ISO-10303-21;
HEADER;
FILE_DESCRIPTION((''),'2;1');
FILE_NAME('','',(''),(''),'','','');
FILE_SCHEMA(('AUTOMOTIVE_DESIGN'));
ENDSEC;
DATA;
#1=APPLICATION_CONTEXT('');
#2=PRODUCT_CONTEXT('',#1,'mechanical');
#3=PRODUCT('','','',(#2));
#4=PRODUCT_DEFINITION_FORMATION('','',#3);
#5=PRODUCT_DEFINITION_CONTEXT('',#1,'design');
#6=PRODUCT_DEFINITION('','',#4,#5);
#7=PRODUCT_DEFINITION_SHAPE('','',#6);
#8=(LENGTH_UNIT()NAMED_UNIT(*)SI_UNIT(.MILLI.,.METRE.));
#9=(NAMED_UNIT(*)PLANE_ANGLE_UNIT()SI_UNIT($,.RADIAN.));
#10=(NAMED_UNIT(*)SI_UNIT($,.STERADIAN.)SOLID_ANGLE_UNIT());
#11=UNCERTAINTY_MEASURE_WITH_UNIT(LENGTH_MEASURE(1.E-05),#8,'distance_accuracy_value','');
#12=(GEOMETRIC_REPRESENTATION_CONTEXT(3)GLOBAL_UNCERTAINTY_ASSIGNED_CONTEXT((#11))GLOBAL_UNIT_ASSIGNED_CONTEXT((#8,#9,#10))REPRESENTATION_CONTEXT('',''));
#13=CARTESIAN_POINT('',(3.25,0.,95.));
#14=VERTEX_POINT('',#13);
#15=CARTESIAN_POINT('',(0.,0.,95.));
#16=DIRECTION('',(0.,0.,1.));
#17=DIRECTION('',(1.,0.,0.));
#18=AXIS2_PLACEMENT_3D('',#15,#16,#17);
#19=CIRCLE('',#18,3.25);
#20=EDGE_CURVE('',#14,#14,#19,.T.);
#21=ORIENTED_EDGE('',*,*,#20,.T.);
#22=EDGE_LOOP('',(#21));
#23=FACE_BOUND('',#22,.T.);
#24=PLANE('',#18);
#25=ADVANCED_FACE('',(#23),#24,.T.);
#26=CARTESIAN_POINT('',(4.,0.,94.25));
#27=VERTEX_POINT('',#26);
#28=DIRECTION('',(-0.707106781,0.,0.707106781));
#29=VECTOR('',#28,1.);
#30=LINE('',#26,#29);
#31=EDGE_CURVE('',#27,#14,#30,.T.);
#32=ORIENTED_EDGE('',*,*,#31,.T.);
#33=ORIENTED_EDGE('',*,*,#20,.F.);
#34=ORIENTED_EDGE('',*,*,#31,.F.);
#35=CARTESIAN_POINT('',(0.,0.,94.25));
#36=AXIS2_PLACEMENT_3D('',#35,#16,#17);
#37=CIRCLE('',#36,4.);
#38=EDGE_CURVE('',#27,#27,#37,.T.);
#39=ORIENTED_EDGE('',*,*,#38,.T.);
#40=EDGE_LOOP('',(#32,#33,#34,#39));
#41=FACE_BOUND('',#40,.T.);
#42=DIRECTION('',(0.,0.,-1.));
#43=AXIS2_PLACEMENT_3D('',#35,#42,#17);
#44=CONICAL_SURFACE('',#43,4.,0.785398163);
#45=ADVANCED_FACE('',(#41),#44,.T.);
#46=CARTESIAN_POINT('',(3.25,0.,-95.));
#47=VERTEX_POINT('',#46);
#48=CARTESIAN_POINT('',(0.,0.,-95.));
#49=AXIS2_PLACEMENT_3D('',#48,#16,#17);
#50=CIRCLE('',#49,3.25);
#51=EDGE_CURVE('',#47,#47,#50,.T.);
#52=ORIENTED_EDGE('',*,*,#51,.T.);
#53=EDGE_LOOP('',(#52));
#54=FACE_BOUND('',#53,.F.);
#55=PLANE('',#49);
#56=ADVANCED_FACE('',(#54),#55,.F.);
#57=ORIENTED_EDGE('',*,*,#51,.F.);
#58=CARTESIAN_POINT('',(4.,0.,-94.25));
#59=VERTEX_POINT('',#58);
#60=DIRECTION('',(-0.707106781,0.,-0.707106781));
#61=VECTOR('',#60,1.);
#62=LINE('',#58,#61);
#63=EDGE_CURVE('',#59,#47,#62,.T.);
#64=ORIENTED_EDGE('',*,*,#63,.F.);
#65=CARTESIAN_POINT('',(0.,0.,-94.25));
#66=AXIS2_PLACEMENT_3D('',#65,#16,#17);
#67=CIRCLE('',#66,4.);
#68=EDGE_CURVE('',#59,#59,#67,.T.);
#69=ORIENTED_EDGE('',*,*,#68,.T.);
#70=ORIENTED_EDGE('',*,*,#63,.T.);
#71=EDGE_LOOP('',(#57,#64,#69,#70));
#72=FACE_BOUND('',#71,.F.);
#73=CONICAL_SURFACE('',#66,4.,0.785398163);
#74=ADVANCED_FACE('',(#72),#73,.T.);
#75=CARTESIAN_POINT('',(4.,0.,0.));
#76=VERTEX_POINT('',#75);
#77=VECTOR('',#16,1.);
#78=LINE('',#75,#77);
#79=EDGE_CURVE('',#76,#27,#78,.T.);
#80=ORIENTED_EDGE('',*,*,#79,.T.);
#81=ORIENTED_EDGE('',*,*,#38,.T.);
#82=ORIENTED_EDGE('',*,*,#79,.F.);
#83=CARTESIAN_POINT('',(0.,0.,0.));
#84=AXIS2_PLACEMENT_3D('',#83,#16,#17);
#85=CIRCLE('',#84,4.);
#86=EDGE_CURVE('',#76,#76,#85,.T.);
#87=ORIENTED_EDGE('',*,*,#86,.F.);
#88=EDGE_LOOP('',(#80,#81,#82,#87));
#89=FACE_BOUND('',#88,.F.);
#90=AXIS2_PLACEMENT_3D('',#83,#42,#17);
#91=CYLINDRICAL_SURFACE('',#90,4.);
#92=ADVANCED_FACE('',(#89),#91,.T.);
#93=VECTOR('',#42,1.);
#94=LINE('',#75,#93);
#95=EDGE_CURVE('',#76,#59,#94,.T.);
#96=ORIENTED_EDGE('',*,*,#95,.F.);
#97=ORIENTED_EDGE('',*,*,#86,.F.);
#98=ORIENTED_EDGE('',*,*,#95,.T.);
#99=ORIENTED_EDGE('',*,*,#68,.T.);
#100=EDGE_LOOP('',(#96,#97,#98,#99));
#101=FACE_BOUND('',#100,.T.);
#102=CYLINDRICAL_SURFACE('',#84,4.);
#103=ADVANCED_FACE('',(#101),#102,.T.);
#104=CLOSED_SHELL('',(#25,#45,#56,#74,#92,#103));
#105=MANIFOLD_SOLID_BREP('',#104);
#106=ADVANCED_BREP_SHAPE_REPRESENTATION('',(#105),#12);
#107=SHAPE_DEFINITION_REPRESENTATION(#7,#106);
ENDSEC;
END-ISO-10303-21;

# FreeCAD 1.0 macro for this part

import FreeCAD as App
import Part
import Sketcher

V = App.Vector
Q = App.Units.Quantity


def edges_at(feature, points):
    """Names of the edges that pass closest to the given points."""
    edges = feature.Shape.Edges
    near = lambda p: min(range(len(edges)), key=lambda i: edges[i].distToShape(Part.Vertex(*p))[0])
    return sorted({f"Edge{near(p) + 1}" for p in points})

doc = App.newDocument("Part")
body = doc.addObject("PartDesign::Body", "Body")

sketch1 = body.newObject("Sketcher::SketchObject", "Sketch")
sketch1.AttachmentSupport = (doc.getObject("XY_Plane"), [""])
sketch1.MapMode = "FlatFace"
sketch1.addGeometry(Part.Circle(V(0, 0, 0), V(0, 0, 1), 4), False)
sketch1.addConstraint([
    Sketcher.Constraint("Coincident", 0, 3, -1, 1),
    Sketcher.Constraint("Diameter", 0, Q("8 mm")),
])
pad1 = body.newObject("PartDesign::Pad", "Pad")
pad1.Profile = sketch1
pad1.Length = 190
pad1.Midplane = True
doc.recompute()

chamfer = body.newObject("PartDesign::Chamfer", "Chamfer")
chamfer.Base = (pad1, edges_at(pad1, [(-4, 0, 95), (-4, 0, -95)]))
chamfer.Size = 0.75

doc.recompute()
